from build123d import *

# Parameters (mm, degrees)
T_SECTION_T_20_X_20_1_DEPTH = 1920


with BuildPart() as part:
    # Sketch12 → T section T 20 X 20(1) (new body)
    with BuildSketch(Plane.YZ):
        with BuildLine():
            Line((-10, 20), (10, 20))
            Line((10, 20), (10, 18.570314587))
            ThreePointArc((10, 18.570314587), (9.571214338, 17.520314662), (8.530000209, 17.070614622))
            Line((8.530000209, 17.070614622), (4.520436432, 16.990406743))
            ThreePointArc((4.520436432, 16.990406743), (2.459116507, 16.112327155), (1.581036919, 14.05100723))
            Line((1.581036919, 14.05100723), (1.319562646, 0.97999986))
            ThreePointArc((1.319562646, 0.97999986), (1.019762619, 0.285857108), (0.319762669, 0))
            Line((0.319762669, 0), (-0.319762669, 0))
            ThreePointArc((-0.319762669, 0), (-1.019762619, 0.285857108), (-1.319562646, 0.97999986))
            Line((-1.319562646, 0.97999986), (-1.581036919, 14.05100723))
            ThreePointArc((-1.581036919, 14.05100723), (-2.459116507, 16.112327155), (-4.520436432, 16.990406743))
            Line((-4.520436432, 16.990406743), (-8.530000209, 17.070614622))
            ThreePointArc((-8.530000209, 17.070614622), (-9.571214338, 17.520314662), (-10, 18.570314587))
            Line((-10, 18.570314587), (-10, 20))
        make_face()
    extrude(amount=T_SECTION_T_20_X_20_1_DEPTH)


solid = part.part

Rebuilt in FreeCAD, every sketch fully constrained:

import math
import FreeCAD as App
import Part
import Sketcher
from FreeCAD import Vector
Q = App.Units.Quantity

doc = App.newDocument("Part")
body = doc.addObject("PartDesign::Body", "Body")

sketch1 = body.newObject("Sketcher::SketchObject", "Sketch")
sketch1.AttachmentSupport = (doc.getObject("YZ_Plane"), [""])
sketch1.MapMode = "FlatFace"
sketch1.addGeometry([
    Part.LineSegment(Vector(10, 20, 0), Vector(-10, 20, 0)),
    Part.LineSegment(Vector(-10, 20, 0), Vector(-10, 18.570315, 0)),
    Part.ArcOfCircle(Part.Circle(Vector(-8.5, 18.570315, 0), Vector(0, 0, 1), 1.5), math.radians(180), math.radians(268.854)),
    Part.LineSegment(Vector(-8.53, 17.070615, 0), Vector(-4.520436, 16.990407, 0)),
    Part.ArcOfCircle(Part.Circle(Vector(-4.580437, 13.991007, 0), Vector(0, 0, 1), 3), math.radians(1.146), math.radians(88.854)),
    Part.LineSegment(Vector(-1.581037, 14.051007, 0), Vector(-1.319563, 0.98, 0)),
    Part.ArcOfCircle(Part.Circle(Vector(-0.319763, 1, 0), Vector(0, 0, 1), 1), math.radians(-178.854), math.radians(-90)),
    Part.LineSegment(Vector(-0.319763, 0, 0), Vector(0.319763, 0, 0)),
    Part.ArcOfCircle(Part.Circle(Vector(0.319763, 1, 0), Vector(0, 0, 1), 1), math.radians(-90), math.radians(-1.146)),
    Part.LineSegment(Vector(1.319563, 0.98, 0), Vector(1.581037, 14.051007, 0)),
    Part.ArcOfCircle(Part.Circle(Vector(4.580437, 13.991007, 0), Vector(0, 0, 1), 3), math.radians(91.146), math.radians(178.854)),
    Part.LineSegment(Vector(4.520436, 16.990407, 0), Vector(8.53, 17.070615, 0)),
    Part.ArcOfCircle(Part.Circle(Vector(8.5, 18.570315, 0), Vector(0, 0, 1), 1.5), math.radians(-88.854), math.radians(0)),
    Part.LineSegment(Vector(10, 18.570315, 0), Vector(10, 20, 0)),
], False)
sketch1.addConstraint([
    Sketcher.Constraint("Coincident", 0, 2, 1, 1),
    Sketcher.Constraint("Coincident", 1, 2, 2, 1),
    Sketcher.Constraint("Coincident", 2, 2, 3, 1),
    Sketcher.Constraint("Coincident", 3, 2, 4, 2),
    Sketcher.Constraint("Coincident", 4, 1, 5, 1),
    Sketcher.Constraint("Coincident", 5, 2, 6, 1),
    Sketcher.Constraint("Coincident", 6, 2, 7, 1),
    Sketcher.Constraint("Coincident", 7, 2, 8, 1),
    Sketcher.Constraint("Coincident", 8, 2, 9, 1),
    Sketcher.Constraint("Coincident", 9, 2, 10, 2),
    Sketcher.Constraint("Coincident", 10, 1, 11, 1),
    Sketcher.Constraint("Coincident", 11, 2, 12, 1),
    Sketcher.Constraint("Coincident", 12, 2, 13, 1),
    Sketcher.Constraint("Coincident", 13, 2, 0, 1),
    Sketcher.Constraint("Horizontal", 0),
    Sketcher.Constraint("Vertical", 1),
    Sketcher.Constraint("Horizontal", 7),
    Sketcher.Constraint("Vertical", 13),
    Sketcher.Constraint("PointOnObject", 6, 2, -1),
    Sketcher.Constraint("Radius", 4, Q("3 mm")),
    Sketcher.Constraint("Radius", 6, Q("1 mm")),
    Sketcher.Constraint("Radius", 8, Q("1 mm")),
    Sketcher.Constraint("Radius", 10, Q("3 mm")),
    Sketcher.Constraint("Radius", 2, Q("1.5 mm")),
    Sketcher.Constraint("Radius", 12, Q("1.5 mm")),
    Sketcher.Constraint("DistanceX", 0, 2, 0, 1, Q("20 mm")),
    Sketcher.Constraint("DistanceX", 0, 2, -1, 1, Q("10 mm")),
    Sketcher.Constraint("DistanceY", -1, 1, 0, 2, Q("20 mm")),
    Sketcher.Constraint("DistanceX", 5, 2, 10, 3, Q("5.899999 mm")),
    Sketcher.Constraint("DistanceX", 2, 2, -1, 1, Q("8.53 mm")),
    Sketcher.Constraint("DistanceY", -1, 1, 5, 2, Q("0.98 mm")),
    Sketcher.Constraint("DistanceY", -1, 1, 8, 2, Q("0.98 mm")),
    Sketcher.Constraint("DistanceX", -1, 1, 11, 2, Q("8.53 mm")),
    Sketcher.Constraint("DistanceX", 4, 3, 3, 2, Q("0.06 mm")),
    Sketcher.Constraint("DistanceY", 4, 3, 4, 1, Q("0.06 mm")),
    Sketcher.Constraint("DistanceY", 10, 3, 4, 1, Q("0.06 mm")),
    Sketcher.Constraint("DistanceY", 10, 3, 9, 2, Q("0.06 mm")),
    Sketcher.Constraint("DistanceX", 10, 1, 10, 3, Q("0.06 mm")),
    Sketcher.Constraint("DistanceX", 4, 3, 8, 3, Q("4.9002 mm")),
    Sketcher.Constraint("DistanceY", 2, 2, 1, 2, Q("1.4997 mm")),
    Sketcher.Constraint("DistanceX", 5, 2, 6, 2, Q("0.9998 mm")),
    Sketcher.Constraint("DistanceX", 4, 1, 7, 2, Q("1.9008 mm")),
    Sketcher.Constraint("DistanceY", 11, 2, 12, 2, Q("1.4997 mm")),
    Sketcher.Constraint("DistanceX", 7, 1, 7, 2, Q("0.639525 mm")),
    Sketcher.Constraint("DistanceY", 1, 2, 1, 1, Q("1.429685 mm")),
    Sketcher.Constraint("DistanceY", 13, 1, 13, 2, Q("1.429685 mm")),
    Sketcher.Constraint("Distance", 3, Q("4.010366 mm")),
    Sketcher.Constraint("Distance", 5, Q("13.073622 mm")),
])
pad1 = body.newObject("PartDesign::Pad", "Pad")
pad1.Profile = sketch1
pad1.Length = 1920

doc.recompute()
